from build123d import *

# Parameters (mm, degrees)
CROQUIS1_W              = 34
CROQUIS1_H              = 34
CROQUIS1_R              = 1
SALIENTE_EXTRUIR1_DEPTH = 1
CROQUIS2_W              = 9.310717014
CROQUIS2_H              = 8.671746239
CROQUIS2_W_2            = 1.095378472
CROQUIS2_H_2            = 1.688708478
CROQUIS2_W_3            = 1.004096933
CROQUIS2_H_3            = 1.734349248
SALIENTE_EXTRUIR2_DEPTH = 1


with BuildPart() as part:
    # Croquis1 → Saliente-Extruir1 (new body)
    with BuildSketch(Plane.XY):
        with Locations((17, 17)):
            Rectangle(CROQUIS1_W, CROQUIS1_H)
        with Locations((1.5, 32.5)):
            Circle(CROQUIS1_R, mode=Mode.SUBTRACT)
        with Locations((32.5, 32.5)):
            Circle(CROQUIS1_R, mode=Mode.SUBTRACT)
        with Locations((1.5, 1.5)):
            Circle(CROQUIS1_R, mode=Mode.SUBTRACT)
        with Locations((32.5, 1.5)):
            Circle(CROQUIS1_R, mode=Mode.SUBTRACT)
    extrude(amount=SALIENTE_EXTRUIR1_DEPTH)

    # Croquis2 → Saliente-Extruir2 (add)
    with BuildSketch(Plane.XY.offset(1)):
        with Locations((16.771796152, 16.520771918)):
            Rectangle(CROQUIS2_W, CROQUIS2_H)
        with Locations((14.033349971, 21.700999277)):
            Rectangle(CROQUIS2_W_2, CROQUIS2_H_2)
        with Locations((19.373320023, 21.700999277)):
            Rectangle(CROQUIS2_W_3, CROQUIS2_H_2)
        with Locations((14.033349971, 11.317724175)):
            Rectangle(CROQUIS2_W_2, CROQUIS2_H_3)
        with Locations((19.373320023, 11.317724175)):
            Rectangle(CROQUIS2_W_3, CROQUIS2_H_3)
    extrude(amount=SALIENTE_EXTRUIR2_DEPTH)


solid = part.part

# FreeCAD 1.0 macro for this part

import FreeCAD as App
import Part
import Sketcher
from FreeCAD import Vector
Q = App.Units.Quantity

doc = App.newDocument("Part")
body = doc.addObject("PartDesign::Body", "Body")

# Sketch on XY plane
sketch1 = doc.addObject("Sketcher::SketchObject", "Sketch")
body.addObject(sketch1)
sketch1.AttachmentSupport = (doc.XY_Plane, [""])
sketch1.MapMode = "FlatFace"
sketch1.addGeometry([
    Part.LineSegment(Vector(0, 34, 0), Vector(0, 0, 0)),  # 0
    Part.LineSegment(Vector(0, 0, 0), Vector(34, 0, 0)),  # 1
    Part.LineSegment(Vector(34, 0, 0), Vector(34, 34, 0)),  # 2
    Part.LineSegment(Vector(34, 34, 0), Vector(0, 34, 0)),  # 3
    Part.Circle(Vector(1.5, 1.5, 0), Vector(0, 0, 1), 1),  # 4
    Part.Circle(Vector(32.5, 1.5, 0), Vector(0, 0, 1), 1),  # 5
    Part.Circle(Vector(1.5, 32.5, 0), Vector(0, 0, 1), 1),  # 6
    Part.Circle(Vector(32.5, 32.5, 0), Vector(0, 0, 1), 1),  # 7
], False)
sketch1.addConstraint([
    Sketcher.Constraint("Coincident", 0, 2, 1, 1),
    Sketcher.Constraint("Coincident", 1, 2, 2, 1),
    Sketcher.Constraint("Coincident", 2, 2, 3, 1),
    Sketcher.Constraint("Coincident", 3, 2, 0, 1),
    Sketcher.Constraint("Vertical", 0),
    Sketcher.Constraint("Horizontal", 1),
    Sketcher.Constraint("Vertical", 2),
    Sketcher.Constraint("Horizontal", 3),
    Sketcher.Constraint("Coincident", 0, 2, -1, 1),
    Sketcher.Constraint("Equal", 4, 5),
    Sketcher.Constraint("Equal", 5, 6),
    Sketcher.Constraint("Equal", 6, 7),
    Sketcher.Constraint("Horizontal", 4, 3, 5, 3),
    Sketcher.Constraint("Horizontal", 6, 3, 7, 3),
    Sketcher.Constraint("Vertical", 4, 3, 6, 3),
    Sketcher.Constraint("Vertical", 5, 3, 7, 3),
    Sketcher.Constraint("Equal", 3, 0),
    Sketcher.Constraint("Diameter", 4, Q("2 mm")),
    Sketcher.Constraint("DistanceX", 1, 1, 1, 2, Q("34 mm")),
    Sketcher.Constraint("DistanceX", 4, 3, 5, 3, Q("31 mm")),
    Sketcher.Constraint("DistanceY", 4, 3, 6, 3, Q("31 mm")),
    Sketcher.Constraint("DistanceX", -1, 1, 4, 3, Q("1.5 mm")),
    Sketcher.Constraint("DistanceY", -1, 1, 4, 3, Q("1.5 mm")),
])
pad1 = doc.addObject("PartDesign::Pad", "Pad")
body.addObject(pad1)
pad1.Profile = sketch1
pad1.Length = 1

# Sketch on XY plane
sketch2 = doc.addObject("Sketcher::SketchObject", "Sketch001")
body.addObject(sketch2)
sketch2.AttachmentSupport = (doc.XY_Plane, [""])
sketch2.MapMode = "FlatFace"
sketch2.AttachmentOffset = App.Placement(Vector(0, 0, 1), App.Rotation())
sketch2.addGeometry([
    Part.LineSegment(Vector(12.1, 20.9, 0), Vector(12.1, 12.2, 0)),  # 0
    Part.LineSegment(Vector(12.1, 12.2, 0), Vector(13.5, 12.2, 0)),  # 1
    Part.LineSegment(Vector(13.5, 12.2, 0), Vector(13.5, 10.5, 0)),  # 2
    Part.LineSegment(Vector(13.5, 10.5, 0), Vector(14.6, 10.5, 0)),  # 3
    Part.LineSegment(Vector(14.6, 10.5, 0), Vector(14.6, 12.2, 0)),  # 4
    Part.LineSegment(Vector(14.6, 12.2, 0), Vector(18.9, 12.2, 0)),  # 5
    Part.LineSegment(Vector(18.9, 12.2, 0), Vector(18.9, 10.5, 0)),  # 6
    Part.LineSegment(Vector(18.9, 10.5, 0), Vector(19.9, 10.5, 0)),  # 7
    Part.LineSegment(Vector(19.9, 10.5, 0), Vector(19.9, 12.2, 0)),  # 8
    Part.LineSegment(Vector(19.9, 12.2, 0), Vector(21.4, 12.2, 0)),  # 9
    Part.LineSegment(Vector(21.4, 12.2, 0), Vector(21.4, 20.9, 0)),  # 10
    Part.LineSegment(Vector(21.4, 20.9, 0), Vector(19.9, 20.9, 0)),  # 11
    Part.LineSegment(Vector(19.9, 20.9, 0), Vector(19.9, 22.5, 0)),  # 12
    Part.LineSegment(Vector(19.9, 22.5, 0), Vector(18.9, 22.5, 0)),  # 13
    Part.LineSegment(Vector(18.9, 22.5, 0), Vector(18.9, 20.9, 0)),  # 14
    Part.LineSegment(Vector(18.9, 20.9, 0), Vector(14.6, 20.9, 0)),  # 15
    Part.LineSegment(Vector(14.6, 20.9, 0), Vector(14.6, 22.5, 0)),  # 16
    Part.LineSegment(Vector(14.6, 22.5, 0), Vector(13.5, 22.5, 0)),  # 17
    Part.LineSegment(Vector(13.5, 22.5, 0), Vector(13.5, 20.9, 0)),  # 18
    Part.LineSegment(Vector(13.5, 20.9, 0), Vector(12.1, 20.9, 0)),  # 19
], False)
sketch2.addConstraint([
    Sketcher.Constraint("Coincident", 0, 2, 1, 1),
    Sketcher.Constraint("Coincident", 1, 2, 2, 1),
    Sketcher.Constraint("Coincident", 2, 2, 3, 1),
    Sketcher.Constraint("Coincident", 3, 2, 4, 1),
    Sketcher.Constraint("Coincident", 4, 2, 5, 1),
    Sketcher.Constraint("Coincident", 5, 2, 6, 1),
    Sketcher.Constraint("Coincident", 6, 2, 7, 1),
    Sketcher.Constraint("Coincident", 7, 2, 8, 1),
    Sketcher.Constraint("Coincident", 8, 2, 9, 1),
    Sketcher.Constraint("Coincident", 9, 2, 10, 1),
    Sketcher.Constraint("Coincident", 10, 2, 11, 1),
    Sketcher.Constraint("Coincident", 11, 2, 12, 1),
    Sketcher.Constraint("Coincident", 12, 2, 13, 1),
    Sketcher.Constraint("Coincident", 13, 2, 14, 1),
    Sketcher.Constraint("Coincident", 14, 2, 15, 1),
    Sketcher.Constraint("Coincident", 15, 2, 16, 1),
    Sketcher.Constraint("Coincident", 16, 2, 17, 1),
    Sketcher.Constraint("Coincident", 17, 2, 18, 1),
    Sketcher.Constraint("Coincident", 18, 2, 19, 1),
    Sketcher.Constraint("Coincident", 19, 2, 0, 1),
    Sketcher.Constraint("Vertical", 0),
    Sketcher.Constraint("Horizontal", 1),
    Sketcher.Constraint("Vertical", 2),
    Sketcher.Constraint("Horizontal", 3),
    Sketcher.Constraint("Vertical", 4),
    Sketcher.Constraint("Horizontal", 5),
    Sketcher.Constraint("Vertical", 6),
    Sketcher.Constraint("Horizontal", 7),
    Sketcher.Constraint("Vertical", 8),
    Sketcher.Constraint("Horizontal", 9),
    Sketcher.Constraint("Vertical", 10),
    Sketcher.Constraint("Horizontal", 11),
    Sketcher.Constraint("Vertical", 12),
    Sketcher.Constraint("Horizontal", 13),
    Sketcher.Constraint("Vertical", 14),
    Sketcher.Constraint("Horizontal", 15),
    Sketcher.Constraint("Vertical", 16),
    Sketcher.Constraint("Horizontal", 17),
    Sketcher.Constraint("Vertical", 18),
    Sketcher.Constraint("Horizontal", 19),
    Sketcher.Constraint("Horizontal", 1, 2, 4, 2),
    Sketcher.Constraint("Horizontal", 3, 2, 6, 2),
    Sketcher.Constraint("Horizontal", 5, 2, 8, 2),
    Sketcher.Constraint("Horizontal", 11, 2, 14, 2),
    Sketcher.Constraint("Horizontal", 13, 2, 16, 2),
    Sketcher.Constraint("Horizontal", 15, 2, 18, 2),
    Sketcher.Constraint("Vertical", 8, 2, 11, 2),
    Sketcher.Constraint("Vertical", 6, 2, 13, 2),
    Sketcher.Constraint("Vertical", 4, 2, 15, 2),
    Sketcher.Constraint("Vertical", 2, 2, 17, 2),
    Sketcher.Constraint("DistanceX", 3, 1, 3, 2, Q("1.095378 mm")),
    Sketcher.Constraint("DistanceY", 2, 2, 2, 1, Q("1.734349 mm")),
    Sketcher.Constraint("DistanceY", 12, 1, 12, 2, Q("1.688708 mm")),
    Sketcher.Constraint("DistanceY", -1, 1, 0, 2, Q("12.184899 mm")),
    Sketcher.Constraint("DistanceX", 0, 2, 3, 2, Q("2.464602 mm")),
    Sketcher.Constraint("DistanceX", 5, 1, 5, 2, Q("4.290232 mm")),
    Sketcher.Constraint("DistanceX", 7, 1, 7, 2, Q("1.004097 mm")),
    Sketcher.Constraint("DistanceX", 9, 1, 9, 2, Q("1.551786 mm")),
    Sketcher.Constraint("DistanceY", 0, 2, 0, 1, Q("8.671746 mm")),
    Sketcher.Constraint("DistanceX", -1, 1, 1, 2, Q("13.485661 mm")),
])
pad2 = doc.addObject("PartDesign::Pad", "Pad001")
body.addObject(pad2)
pad2.Profile = sketch2
pad2.Length = 1

doc.recompute()
